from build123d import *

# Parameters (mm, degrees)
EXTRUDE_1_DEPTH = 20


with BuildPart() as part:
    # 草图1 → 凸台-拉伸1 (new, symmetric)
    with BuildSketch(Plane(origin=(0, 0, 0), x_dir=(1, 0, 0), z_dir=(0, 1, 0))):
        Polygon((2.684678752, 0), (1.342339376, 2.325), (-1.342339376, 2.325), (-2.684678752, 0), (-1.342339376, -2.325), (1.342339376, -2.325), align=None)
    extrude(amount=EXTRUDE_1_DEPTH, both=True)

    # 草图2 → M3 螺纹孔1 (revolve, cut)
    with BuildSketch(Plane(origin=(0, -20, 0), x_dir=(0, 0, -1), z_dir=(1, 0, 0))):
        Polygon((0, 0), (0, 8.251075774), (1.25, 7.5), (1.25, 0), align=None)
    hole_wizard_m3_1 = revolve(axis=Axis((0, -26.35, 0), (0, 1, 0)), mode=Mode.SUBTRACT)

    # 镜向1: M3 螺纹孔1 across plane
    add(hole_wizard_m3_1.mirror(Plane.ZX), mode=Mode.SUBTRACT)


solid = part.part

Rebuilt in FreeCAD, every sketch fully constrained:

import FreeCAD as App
import Part
import Sketcher
Q = App.Units.Quantity

doc = App.newDocument("Part")
params = doc.addObject("Spreadsheet::Sheet", "Params")
for row, (alias, value) in enumerate([
    ("pad1_length", "40 mm"),
    ("sketch2_width", "7.5 mm"),
    ("sketch2_height", "1.25 mm"),
    ("groove_angle", "360 deg"),
], start=1):
    params.set(f"A{row}", alias)
    params.set(f"B{row}", "=" + value)
    params.setAlias(f"B{row}", alias)

body = doc.addObject("PartDesign::Body", "Body")

# Sketch on XZ plane
sketch1 = body.newObject("Sketcher::SketchObject", "Sketch")
sketch1.AttachmentSupport = (doc.getObject("XZ_Plane"), [""])
sketch1.MapMode = "FlatFace"
sketch1.addGeometry([
    Part.LineSegment(App.Vector(2.7, 0, 0), App.Vector(1.3, -2.3, 0)),  # 0
    Part.LineSegment(App.Vector(1.3, -2.3, 0), App.Vector(-1.3, -2.3, 0)),  # 1
    Part.LineSegment(App.Vector(-1.3, -2.3, 0), App.Vector(-2.7, 0, 0)),  # 2
    Part.LineSegment(App.Vector(-2.7, 0, 0), App.Vector(-1.3, 2.3, 0)),  # 3
    Part.LineSegment(App.Vector(-1.3, 2.3, 0), App.Vector(1.3, 2.3, 0)),  # 4
    Part.LineSegment(App.Vector(1.3, 2.3, 0), App.Vector(2.7, 0, 0)),  # 5
], False)
sketch1.addConstraint([
    Sketcher.Constraint("Coincident", 0, 2, 1, 1),
    Sketcher.Constraint("Coincident", 1, 2, 2, 1),
    Sketcher.Constraint("Coincident", 2, 2, 3, 1),
    Sketcher.Constraint("Coincident", 3, 2, 4, 1),
    Sketcher.Constraint("Coincident", 4, 2, 5, 1),
    Sketcher.Constraint("Coincident", 5, 2, 0, 1),
    Sketcher.Constraint("Horizontal", 1),
    Sketcher.Constraint("Horizontal", 4),
    Sketcher.Constraint("Symmetric", 0, 2, 3, 2, -1, 1),
    Sketcher.Constraint("Symmetric", 2, 2, 5, 2, -1, 1),
    Sketcher.Constraint("PointOnObject", 2, 2, -1),
    Sketcher.Constraint("Parallel", 2, 5),
    Sketcher.Constraint("Vertical", 1, 2, 3, 2),
    Sketcher.Constraint("Angle", 0, Q("-120 deg")),
    Sketcher.Constraint("DistanceY", 1, 2, 3, 2, Q("4.65 mm")),
    Sketcher.Constraint("DistanceX", 1, 2, 1, 1, Q("2.684679 mm")),
])
pad1 = body.newObject("PartDesign::Pad", "Pad")
pad1.Profile = sketch1
pad1.setExpression("Length", "Params.pad1_length")
pad1.Midplane = True

# Sketch on YZ plane
sketch2 = body.newObject("Sketcher::SketchObject", "Sketch001")
sketch2.AttachmentSupport = (doc.getObject("YZ_Plane"), [""])
sketch2.MapMode = "FlatFace"
sketch2.addGeometry([
    Part.LineSegment(App.Vector(-11.7, 0, 0), App.Vector(-20, 0, 0)),
    Part.LineSegment(App.Vector(-20, 0, 0), App.Vector(-20, -1.2, 0)),
    Part.LineSegment(App.Vector(-20, -1.2, 0), App.Vector(-12.5, -1.2, 0)),
    Part.LineSegment(App.Vector(-12.5, -1.2, 0), App.Vector(-11.7, 0, 0)),
], False)
sketch2.addConstraint([
    Sketcher.Constraint("Coincident", 0, 2, 1, 1),
    Sketcher.Constraint("Coincident", 1, 2, 2, 1),
    Sketcher.Constraint("Coincident", 2, 2, 3, 1),
    Sketcher.Constraint("Coincident", 3, 2, 0, 1),
    Sketcher.Constraint("Horizontal", 0),
    Sketcher.Constraint("Vertical", 1),
    Sketcher.Constraint("Horizontal", 2),
    Sketcher.Constraint("PointOnObject", 0, 2, -1),
    Sketcher.Constraint("Angle", 3, Q("59 deg")),
    Sketcher.Constraint("DistanceX", 2, 1, 2, 2, Q("7.5 mm")),
    Sketcher.Constraint("DistanceX", 0, 2, -1, 1, Q("20 mm")),
    Sketcher.Constraint("DistanceY", 1, 2, 1, 1, Q("1.25 mm")),
])
sketch2.setExpression("Constraints[9]", "Params.sketch2_width")
sketch2.setExpression("Constraints[11]", "Params.sketch2_height")
groove = body.newObject("PartDesign::Groove", "Groove")
groove.Profile = sketch2
groove.ReferenceAxis = (sketch2, ["H_Axis"])
groove.setExpression("Angle", "Params.groove_angle")
doc.recompute()

mirrored = body.newObject("PartDesign::Mirrored", "Mirrored")
mirrored.Originals = [groove]
mirrored.MirrorPlane = (doc.getObject("XZ_Plane"), [""])
body.Tip = mirrored

doc.recompute()
